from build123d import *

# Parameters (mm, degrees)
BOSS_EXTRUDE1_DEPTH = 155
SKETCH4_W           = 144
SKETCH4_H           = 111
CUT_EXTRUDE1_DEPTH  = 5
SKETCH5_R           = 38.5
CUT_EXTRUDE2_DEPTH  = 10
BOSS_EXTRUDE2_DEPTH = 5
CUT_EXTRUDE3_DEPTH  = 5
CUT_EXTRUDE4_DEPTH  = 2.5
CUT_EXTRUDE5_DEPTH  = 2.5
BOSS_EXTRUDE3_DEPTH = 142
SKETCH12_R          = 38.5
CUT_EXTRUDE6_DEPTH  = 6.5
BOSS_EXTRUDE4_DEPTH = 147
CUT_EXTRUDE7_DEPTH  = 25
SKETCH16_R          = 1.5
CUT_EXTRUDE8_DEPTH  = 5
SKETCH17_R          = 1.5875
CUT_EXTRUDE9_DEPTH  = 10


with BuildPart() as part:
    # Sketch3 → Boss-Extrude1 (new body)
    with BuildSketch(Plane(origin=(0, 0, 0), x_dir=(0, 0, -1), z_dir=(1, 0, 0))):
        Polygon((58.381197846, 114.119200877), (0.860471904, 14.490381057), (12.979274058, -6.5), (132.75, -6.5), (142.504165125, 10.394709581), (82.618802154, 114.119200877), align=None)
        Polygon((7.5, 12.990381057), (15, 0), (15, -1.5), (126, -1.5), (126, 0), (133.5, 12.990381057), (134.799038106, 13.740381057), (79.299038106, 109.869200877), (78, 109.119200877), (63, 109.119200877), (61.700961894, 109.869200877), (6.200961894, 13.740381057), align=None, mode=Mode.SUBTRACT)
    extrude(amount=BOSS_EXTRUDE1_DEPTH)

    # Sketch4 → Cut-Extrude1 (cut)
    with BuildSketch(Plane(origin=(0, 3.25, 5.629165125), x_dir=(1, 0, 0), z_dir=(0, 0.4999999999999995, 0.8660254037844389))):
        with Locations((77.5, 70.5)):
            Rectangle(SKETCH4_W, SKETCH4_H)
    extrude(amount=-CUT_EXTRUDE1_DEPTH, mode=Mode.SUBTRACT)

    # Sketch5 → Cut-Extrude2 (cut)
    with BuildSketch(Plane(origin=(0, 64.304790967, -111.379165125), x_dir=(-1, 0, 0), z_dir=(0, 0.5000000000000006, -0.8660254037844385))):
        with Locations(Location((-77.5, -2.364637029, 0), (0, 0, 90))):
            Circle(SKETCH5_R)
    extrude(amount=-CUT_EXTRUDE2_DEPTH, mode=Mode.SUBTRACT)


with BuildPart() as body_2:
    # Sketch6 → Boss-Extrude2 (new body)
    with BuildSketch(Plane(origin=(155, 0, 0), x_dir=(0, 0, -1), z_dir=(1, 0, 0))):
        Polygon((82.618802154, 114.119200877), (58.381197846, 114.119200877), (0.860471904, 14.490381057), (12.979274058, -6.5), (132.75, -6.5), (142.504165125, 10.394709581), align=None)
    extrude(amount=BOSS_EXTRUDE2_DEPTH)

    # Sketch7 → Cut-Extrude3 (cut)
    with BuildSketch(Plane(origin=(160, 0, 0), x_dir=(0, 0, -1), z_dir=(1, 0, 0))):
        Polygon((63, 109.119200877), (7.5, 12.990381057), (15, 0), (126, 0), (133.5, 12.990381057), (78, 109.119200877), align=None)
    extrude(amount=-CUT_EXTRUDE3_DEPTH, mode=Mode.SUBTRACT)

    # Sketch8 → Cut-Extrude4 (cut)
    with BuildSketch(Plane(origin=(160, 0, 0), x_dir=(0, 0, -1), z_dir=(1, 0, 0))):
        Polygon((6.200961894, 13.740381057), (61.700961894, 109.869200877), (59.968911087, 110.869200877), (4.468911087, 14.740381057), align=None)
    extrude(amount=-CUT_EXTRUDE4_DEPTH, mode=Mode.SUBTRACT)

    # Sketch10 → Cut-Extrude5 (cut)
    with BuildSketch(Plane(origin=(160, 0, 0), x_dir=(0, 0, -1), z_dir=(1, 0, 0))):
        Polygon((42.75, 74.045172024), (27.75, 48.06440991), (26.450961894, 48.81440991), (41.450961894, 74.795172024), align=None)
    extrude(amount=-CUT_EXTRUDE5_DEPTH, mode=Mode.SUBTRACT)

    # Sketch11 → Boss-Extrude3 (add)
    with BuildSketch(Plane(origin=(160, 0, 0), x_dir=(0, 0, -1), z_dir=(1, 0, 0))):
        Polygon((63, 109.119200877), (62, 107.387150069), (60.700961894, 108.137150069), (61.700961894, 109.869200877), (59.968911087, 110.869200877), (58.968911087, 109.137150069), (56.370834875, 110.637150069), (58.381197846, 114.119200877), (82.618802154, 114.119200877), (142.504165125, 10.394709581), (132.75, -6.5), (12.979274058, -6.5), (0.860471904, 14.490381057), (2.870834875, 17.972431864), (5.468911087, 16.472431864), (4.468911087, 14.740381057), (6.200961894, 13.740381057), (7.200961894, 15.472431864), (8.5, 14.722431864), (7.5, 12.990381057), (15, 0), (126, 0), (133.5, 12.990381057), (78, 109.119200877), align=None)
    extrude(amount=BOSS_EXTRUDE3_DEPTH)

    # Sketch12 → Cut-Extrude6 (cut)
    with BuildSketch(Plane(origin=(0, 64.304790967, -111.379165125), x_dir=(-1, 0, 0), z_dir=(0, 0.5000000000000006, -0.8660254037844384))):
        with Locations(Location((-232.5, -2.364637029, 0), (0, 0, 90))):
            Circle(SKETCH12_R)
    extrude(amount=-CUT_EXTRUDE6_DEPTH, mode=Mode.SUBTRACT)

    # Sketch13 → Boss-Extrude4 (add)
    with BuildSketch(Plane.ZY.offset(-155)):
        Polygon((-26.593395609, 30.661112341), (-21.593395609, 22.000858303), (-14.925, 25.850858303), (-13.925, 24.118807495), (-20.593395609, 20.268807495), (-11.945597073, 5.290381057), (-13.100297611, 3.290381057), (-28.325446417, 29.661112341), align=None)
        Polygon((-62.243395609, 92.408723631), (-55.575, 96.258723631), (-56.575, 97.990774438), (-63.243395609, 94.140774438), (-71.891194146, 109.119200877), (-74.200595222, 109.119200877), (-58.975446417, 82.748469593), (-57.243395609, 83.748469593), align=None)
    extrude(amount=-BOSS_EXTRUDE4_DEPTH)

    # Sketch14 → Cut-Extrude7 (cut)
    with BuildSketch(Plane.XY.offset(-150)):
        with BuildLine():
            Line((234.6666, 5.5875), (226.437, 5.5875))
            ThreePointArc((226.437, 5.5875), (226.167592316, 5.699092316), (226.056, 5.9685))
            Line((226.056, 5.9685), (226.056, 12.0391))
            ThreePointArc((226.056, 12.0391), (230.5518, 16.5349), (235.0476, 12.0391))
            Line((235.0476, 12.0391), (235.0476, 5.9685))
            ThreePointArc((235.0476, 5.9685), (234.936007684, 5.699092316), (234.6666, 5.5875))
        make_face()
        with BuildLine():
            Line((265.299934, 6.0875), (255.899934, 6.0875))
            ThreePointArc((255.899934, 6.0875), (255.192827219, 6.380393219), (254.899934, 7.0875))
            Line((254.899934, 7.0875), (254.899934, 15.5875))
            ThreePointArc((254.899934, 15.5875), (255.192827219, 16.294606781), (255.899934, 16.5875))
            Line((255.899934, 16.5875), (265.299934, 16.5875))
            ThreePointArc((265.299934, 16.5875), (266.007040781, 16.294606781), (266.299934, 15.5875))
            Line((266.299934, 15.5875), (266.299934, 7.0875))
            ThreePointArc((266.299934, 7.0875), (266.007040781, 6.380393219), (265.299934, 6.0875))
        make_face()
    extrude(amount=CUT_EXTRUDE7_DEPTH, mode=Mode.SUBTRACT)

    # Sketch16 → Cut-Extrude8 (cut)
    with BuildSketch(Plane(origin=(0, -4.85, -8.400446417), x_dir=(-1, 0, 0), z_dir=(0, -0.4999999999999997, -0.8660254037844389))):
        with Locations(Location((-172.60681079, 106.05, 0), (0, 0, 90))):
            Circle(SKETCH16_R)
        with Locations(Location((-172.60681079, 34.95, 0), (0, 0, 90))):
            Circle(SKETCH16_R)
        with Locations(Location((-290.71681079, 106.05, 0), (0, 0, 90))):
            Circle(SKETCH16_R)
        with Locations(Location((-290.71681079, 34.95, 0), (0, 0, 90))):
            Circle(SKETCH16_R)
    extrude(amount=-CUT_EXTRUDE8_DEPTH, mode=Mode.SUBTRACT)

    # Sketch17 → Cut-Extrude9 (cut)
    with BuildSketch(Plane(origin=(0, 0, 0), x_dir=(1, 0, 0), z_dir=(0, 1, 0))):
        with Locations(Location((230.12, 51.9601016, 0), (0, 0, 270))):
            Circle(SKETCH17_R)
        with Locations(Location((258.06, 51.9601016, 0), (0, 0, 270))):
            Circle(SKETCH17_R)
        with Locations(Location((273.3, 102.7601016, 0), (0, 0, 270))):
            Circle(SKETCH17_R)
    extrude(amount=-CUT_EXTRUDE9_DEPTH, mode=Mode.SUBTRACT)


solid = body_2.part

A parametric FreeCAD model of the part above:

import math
import FreeCAD as App
import Part
import Sketcher
from FreeCAD import Vector
Q = App.Units.Quantity


def add_polygon(sketch, points):
    """Adds a closed chain of lines whose ends are joined by coincident constraints."""
    first, n = sketch.GeometryCount, len(points)
    for a, b in zip(points, points[1:] + points[:1]):
        sketch.addGeometry(Part.LineSegment(App.Vector(*a, 0), App.Vector(*b, 0)), False)
    for i in range(n):
        sketch.addConstraint(Sketcher.Constraint("Coincident", first + i, 2, first + (i + 1) % n, 1))

doc = App.newDocument("Part")
body = doc.addObject("PartDesign::Body", "Body")

sketch1 = body.newObject("Sketcher::SketchObject", "Sketch")
sketch1.AttachmentSupport = (doc.getObject("YZ_Plane"), [""])
sketch1.MapMode = "FlatFace"
add_polygon(sketch1, [(114.1, -58.4), (14.5, -0.9), (-6.5, -13), (-6.5, -132.8), (10.4, -142.5), (114.1, -82.6)])
add_polygon(sketch1, [(0, -15), (13, -7.5), (13.7, -6.2), (109.9, -61.7), (109.1, -63), (109.1, -78), (109.9, -79.3), (13.7, -134.8), (13, -133.5), (0, -126), (-1.5, -126), (-1.5, -15)])
sketch1.addConstraint(Sketcher.Constraint("Vertical", 2))
sketch1.addConstraint(Sketcher.Constraint("Vertical", 5))
sketch1.addConstraint(Sketcher.Constraint("Vertical", 10))
sketch1.addConstraint(Sketcher.Constraint("Horizontal", 15))
sketch1.addConstraint(Sketcher.Constraint("Vertical", 16))
sketch1.addConstraint(Sketcher.Constraint("Horizontal", 17))
sketch1.addConstraint(Sketcher.Constraint("PointOnObject", 14, 2, -2))
sketch1.addConstraint(Sketcher.Constraint("PointOnObject", 17, 2, -2))
sketch1.addConstraint(Sketcher.Constraint("Parallel", 0, 3))
sketch1.addConstraint(Sketcher.Constraint("Parallel", 1, 4))
sketch1.addConstraint(Sketcher.Constraint("Parallel", 4, 6))
sketch1.addConstraint(Sketcher.Constraint("Perpendicular", 3, 7))
sketch1.addConstraint(Sketcher.Constraint("Perpendicular", 7, 8))
sketch1.addConstraint(Sketcher.Constraint("Perpendicular", 8, 9))
sketch1.addConstraint(Sketcher.Constraint("Perpendicular", 6, 11))
sketch1.addConstraint(Sketcher.Constraint("Perpendicular", 11, 12))
sketch1.addConstraint(Sketcher.Constraint("Perpendicular", 12, 13))
sketch1.addConstraint(Sketcher.Constraint("Perpendicular", 9, 14))
sketch1.addConstraint(Sketcher.Constraint("Vertical", 8, 2, 11, 2))
sketch1.addConstraint(Sketcher.Constraint("Vertical", 7, 2, 12, 2))
sketch1.addConstraint(Sketcher.Constraint("Vertical", 6, 2, 13, 2))
sketch1.addConstraint(Sketcher.Constraint("Equal", 7, 9))
sketch1.addConstraint(Sketcher.Constraint("Equal", 9, 11))
sketch1.addConstraint(Sketcher.Constraint("DistanceY", 10, 2, 10, 1, 15.0))
sketch1.addConstraint(Sketcher.Constraint("DistanceY", 16, 1, 16, 2, 111.0))
sketch1.addConstraint(Sketcher.Constraint("Angle", 0, Q("150 deg")))
sketch1.addConstraint(Sketcher.Constraint("Distance", 6, 15.0))
sketch1.addConstraint(Sketcher.Constraint("DistanceX", 15, 2, 15, 1, 1.5))
sketch1.addConstraint(Sketcher.Constraint("DistanceY", 9, 2, -1, 1, 63.0))
sketch1.addConstraint(Sketcher.Constraint("DistanceX", 9, 2, 5, 2, 5.0))
sketch1.addConstraint(Sketcher.Constraint("DistanceX", 2, 2, 15, 2, 5.0))
sketch1.addConstraint(Sketcher.Constraint("Distance", 7, 1.5))
sketch1.addConstraint(Sketcher.Constraint("DistanceX", 6, 2, 0, 2, 1.5))
sketch1.addConstraint(Sketcher.Constraint("DistanceY", 2, 2, -1, 1, 132.75))
sketch1.addConstraint(Sketcher.Constraint("Distance", 3, 19.50833))
sketch1.addConstraint(Sketcher.Constraint("DistanceY", 2, 2, 2, 1, 119.770726))
pad1 = body.newObject("PartDesign::Pad", "Pad")
pad1.Profile = sketch1
pad1.Length = 155

sketch2 = body.newObject("Sketcher::SketchObject", "Sketch001")
sketch2.Placement = App.Placement(Vector(0, 3.25, 5.629165), App.Rotation(Vector(1, 0, 0), Vector(0, 0.866025404, -0.5), Vector(0, 0.5, 0.866025404), "ZXY"))
add_polygon(sketch2, [(6, 126), (6, 15), (150, 15), (150, 126)])
sketch2.addConstraint(Sketcher.Constraint("Vertical", 0))
sketch2.addConstraint(Sketcher.Constraint("Horizontal", 1))
sketch2.addConstraint(Sketcher.Constraint("Vertical", 2))
sketch2.addConstraint(Sketcher.Constraint("Horizontal", 3))
sketch2.addConstraint(Sketcher.Constraint("DistanceX", 1, 1, 1, 2, 144.0))
sketch2.addConstraint(Sketcher.Constraint("DistanceY", 0, 2, 0, 1, 111.0))
sketch2.addConstraint(Sketcher.Constraint("DistanceY", -1, 1, 0, 2, 15.0))
sketch2.addConstraint(Sketcher.Constraint("DistanceX", -1, 1, 0, 2, 5.5))
pocket1 = body.newObject("PartDesign::Pocket", "Pocket")
pocket1.Profile = sketch2
pocket1.Length = 5

sketch3 = body.newObject("Sketcher::SketchObject", "Sketch002")
sketch3.Placement = App.Placement(Vector(0, 64.304791, -111.379165), App.Rotation(Vector(-1, 0, 0), Vector(0, 0.866025404, 0.5), Vector(0, 0.5, -0.866025404), "ZXY"))
sketch3.addGeometry(Part.Circle(Vector(-78, -2, 0), Vector(0, 0, 1), 38), False)
sketch3.addConstraint(Sketcher.Constraint("Diameter", 0, 77.0))
sketch3.addConstraint(Sketcher.Constraint("DistanceX", 0, 3, -1, 1, 77.5))
sketch3.addConstraint(Sketcher.Constraint("DistanceY", 0, 3, -1, 1, 2.364637))
pocket2 = body.newObject("PartDesign::Pocket", "Pocket001")
pocket2.Profile = sketch3
pocket2.Length = 10
body2 = doc.addObject("PartDesign::Body", "Body001")

sketch4 = body2.newObject("Sketcher::SketchObject", "Sketch003")
sketch4.AttachmentSupport = (doc.getObject("YZ_Plane001"), [""])
sketch4.MapMode = "FlatFace"
sketch4.AttachmentOffset = App.Placement(Vector(0, 0, 155), App.Rotation())
add_polygon(sketch4, [(114, -83), (114, -58), (14, -1), (-6, -13), (-6, -133), (10, -143)])
sketch4.addConstraint(Sketcher.Constraint("Vertical", 0))
sketch4.addConstraint(Sketcher.Constraint("Vertical", 3))
sketch4.addConstraint(Sketcher.Constraint("Parallel", 1, 4))
sketch4.addConstraint(Sketcher.Constraint("Parallel", 2, 5))
sketch4.addConstraint(Sketcher.Constraint("Angle", 1, Q("150 deg")))
sketch4.addConstraint(Sketcher.Constraint("Angle", 2, Q("-150 deg")))
sketch4.addConstraint(Sketcher.Constraint("DistanceX", 2, 2, -1, 1, 6.5))
sketch4.addConstraint(Sketcher.Constraint("DistanceY", 3, 2, -1, 1, 132.75))
sketch4.addConstraint(Sketcher.Constraint("DistanceX", -1, 1, 0, 2, 114.119201))
sketch4.addConstraint(Sketcher.Constraint("Distance", 1, 115.041452))
sketch4.addConstraint(Sketcher.Constraint("Distance", 4, 19.50833))
sketch4.addConstraint(Sketcher.Constraint("DistanceY", 0, 1, 0, 2, 24.237604))
pad2 = body2.newObject("PartDesign::Pad", "Pad001")
pad2.Profile = sketch4
pad2.Length = 5

sketch5 = body2.newObject("Sketcher::SketchObject", "Sketch004")
sketch5.AttachmentSupport = (doc.getObject("YZ_Plane001"), [""])
sketch5.MapMode = "FlatFace"
sketch5.AttachmentOffset = App.Placement(Vector(0, 0, 160), App.Rotation())
add_polygon(sketch5, [(109, -63), (13, -8), (0, -15), (0, -126), (13, -134), (109, -78)])
sketch5.addConstraint(Sketcher.Constraint("Vertical", 2))
sketch5.addConstraint(Sketcher.Constraint("Vertical", 5))
sketch5.addConstraint(Sketcher.Constraint("PointOnObject", 1, 2, -2))
sketch5.addConstraint(Sketcher.Constraint("Parallel", 0, 3))
sketch5.addConstraint(Sketcher.Constraint("Parallel", 1, 4))
sketch5.addConstraint(Sketcher.Constraint("Vertical", 0, 2, 3, 2))
sketch5.addConstraint(Sketcher.Constraint("Equal", 1, 3))
sketch5.addConstraint(Sketcher.Constraint("DistanceY", 2, 2, 2, 1, 111.0))
sketch5.addConstraint(Sketcher.Constraint("DistanceY", 5, 1, 5, 2, 15.0))
sketch5.addConstraint(Sketcher.Constraint("Angle", 0, Q("150 deg")))
sketch5.addConstraint(Sketcher.Constraint("Distance", 0, 111.0))
sketch5.addConstraint(Sketcher.Constraint("DistanceY", 1, 2, -1, 1, 15.0))
pocket3 = body2.newObject("PartDesign::Pocket", "Pocket002")
pocket3.Profile = sketch5
pocket3.Length = 5

sketch6 = body2.newObject("Sketcher::SketchObject", "Sketch005")
sketch6.AttachmentSupport = (doc.getObject("YZ_Plane001"), [""])
sketch6.MapMode = "FlatFace"
sketch6.AttachmentOffset = App.Placement(Vector(0, 0, 160), App.Rotation())
add_polygon(sketch6, [(13.7, -6.2), (109.9, -61.7), (110.9, -60), (14.7, -4.5)])
sketch6.addConstraint(Sketcher.Constraint("Perpendicular", 0, 1))
sketch6.addConstraint(Sketcher.Constraint("Perpendicular", 1, 2))
sketch6.addConstraint(Sketcher.Constraint("Perpendicular", 2, 3))
sketch6.addConstraint(Sketcher.Constraint("Angle", 0, Q("-30 deg")))
sketch6.addConstraint(Sketcher.Constraint("Distance", 0, 111.0))
sketch6.addConstraint(Sketcher.Constraint("Distance", 1, 2.0))
sketch6.addConstraint(Sketcher.Constraint("DistanceX", -1, 1, 0, 2, 109.869201))
sketch6.addConstraint(Sketcher.Constraint("DistanceY", 0, 2, -1, 1, 61.700962))
pocket4 = body2.newObject("PartDesign::Pocket", "Pocket003")
pocket4.Profile = sketch6
pocket4.Length = 2.5

sketch7 = body2.newObject("Sketcher::SketchObject", "Sketch006")
sketch7.AttachmentSupport = (doc.getObject("YZ_Plane001"), [""])
sketch7.MapMode = "FlatFace"
sketch7.AttachmentOffset = App.Placement(Vector(0, 0, 160), App.Rotation())
add_polygon(sketch7, [(48.1, -27.8), (74, -42.8), (74.8, -41.5), (48.8, -26.5)])
sketch7.addConstraint(Sketcher.Constraint("Perpendicular", 0, 1))
sketch7.addConstraint(Sketcher.Constraint("Perpendicular", 1, 2))
sketch7.addConstraint(Sketcher.Constraint("Perpendicular", 2, 3))
sketch7.addConstraint(Sketcher.Constraint("Angle", 0, Q("-30 deg")))
sketch7.addConstraint(Sketcher.Constraint("Distance", 0, 30.0))
sketch7.addConstraint(Sketcher.Constraint("Distance", 1, 1.5))
sketch7.addConstraint(Sketcher.Constraint("DistanceY", 0, 2, -1, 1, 42.75))
sketch7.addConstraint(Sketcher.Constraint("DistanceX", -1, 1, 2, 2, 48.81441))
pocket5 = body2.newObject("PartDesign::Pocket", "Pocket004")
pocket5.Profile = sketch7
pocket5.Length = 2.5

sketch8 = body2.newObject("Sketcher::SketchObject", "Sketch007")
sketch8.AttachmentSupport = (doc.getObject("YZ_Plane001"), [""])
sketch8.MapMode = "FlatFace"
sketch8.AttachmentOffset = App.Placement(Vector(0, 0, 160), App.Rotation())
add_polygon(sketch8, [(107.4, -62), (109.1, -63), (109.1, -78), (13, -133.5), (0, -126), (0, -15), (13, -7.5), (14.7, -8.5), (15.5, -7.2), (13.7, -6.2), (14.7, -4.5), (16.5, -5.5), (18, -2.9), (14.5, -0.9), (-6.5, -13), (-6.5, -132.8), (10.4, -142.5), (114.1, -82.6), (114.1, -58.4), (110.6, -56.4), (109.1, -59), (110.9, -60), (109.9, -61.7), (108.1, -60.7)])
sketch8.addConstraint(Sketcher.Constraint("Vertical", 1))
sketch8.addConstraint(Sketcher.Constraint("Vertical", 4))
sketch8.addConstraint(Sketcher.Constraint("Vertical", 14))
sketch8.addConstraint(Sketcher.Constraint("Vertical", 17))
sketch8.addConstraint(Sketcher.Constraint("PointOnObject", 3, 2, -2))
sketch8.addConstraint(Sketcher.Constraint("Parallel", 0, 3))
sketch8.addConstraint(Sketcher.Constraint("Parallel", 2, 5))
sketch8.addConstraint(Sketcher.Constraint("Parallel", 3, 6))
sketch8.addConstraint(Sketcher.Constraint("Perpendicular", 6, 7))
sketch8.addConstraint(Sketcher.Constraint("Perpendicular", 7, 8))
sketch8.addConstraint(Sketcher.Constraint("Perpendicular", 8, 9))
sketch8.addConstraint(Sketcher.Constraint("Perpendicular", 9, 10))
sketch8.addConstraint(Sketcher.Constraint("Perpendicular", 10, 11))
sketch8.addConstraint(Sketcher.Constraint("Perpendicular", 11, 12))
sketch8.addConstraint(Sketcher.Constraint("Parallel", 5, 13))
sketch8.addConstraint(Sketcher.Constraint("Parallel", 12, 15))
sketch8.addConstraint(Sketcher.Constraint("Parallel", 13, 16))
sketch8.addConstraint(Sketcher.Constraint("Parallel", 15, 18))
sketch8.addConstraint(Sketcher.Constraint("Perpendicular", 18, 19))
sketch8.addConstraint(Sketcher.Constraint("Perpendicular", 19, 20))
sketch8.addConstraint(Sketcher.Constraint("Perpendicular", 20, 21))
sketch8.addConstraint(Sketcher.Constraint("Perpendicular", 21, 22))
sketch8.addConstraint(Sketcher.Constraint("Perpendicular", 22, 23))
sketch8.addConstraint(Sketcher.Constraint("Vertical", 2, 2, 5, 2))
sketch8.addConstraint(Sketcher.Constraint("Equal", 3, 5))
sketch8.addConstraint(Sketcher.Constraint("Equal", 0, 6))
sketch8.addConstraint(Sketcher.Constraint("Equal", 6, 8))
sketch8.addConstraint(Sketcher.Constraint("Equal", 8, 9))
sketch8.addConstraint(Sketcher.Constraint("Equal", 9, 10))
sketch8.addConstraint(Sketcher.Constraint("Equal", 12, 18))
sketch8.addConstraint(Sketcher.Constraint("Equal", 11, 19))
sketch8.addConstraint(Sketcher.Constraint("Equal", 10, 20))
sketch8.addConstraint(Sketcher.Constraint("Equal", 20, 21))
sketch8.addConstraint(Sketcher.Constraint("Equal", 21, 22))
sketch8.addConstraint(Sketcher.Constraint("Equal", 7, 23))
sketch8.addConstraint(Sketcher.Constraint("DistanceY", 1, 2, 1, 1, 15.0))
sketch8.addConstraint(Sketcher.Constraint("DistanceY", 4, 1, 4, 2, 111.0))
sketch8.addConstraint(Sketcher.Constraint("Angle", 0, Q("-30 deg")))
sketch8.addConstraint(Sketcher.Constraint("Distance", 0, 2.0))
sketch8.addConstraint(Sketcher.Constraint("Distance", 2, 111.0))
sketch8.addConstraint(Sketcher.Constraint("Distance", 3, 15.0))
sketch8.addConstraint(Sketcher.Constraint("Distance", 11, 3.0))
sketch8.addConstraint(Sketcher.Constraint("DistanceY", 0, 2, -1, 1, 63.0))
sketch8.addConstraint(Sketcher.Constraint("DistanceX", 1, 2, 16, 2, 5.0))
sketch8.addConstraint(Sketcher.Constraint("Distance", 7, 1.5))
sketch8.addConstraint(Sketcher.Constraint("DistanceX", 13, 2, -1, 1, 6.5))
sketch8.addConstraint(Sketcher.Constraint("DistanceY", 14, 2, -1, 1, 132.75))
sketch8.addConstraint(Sketcher.Constraint("Distance", 15, 19.50833))
pad3 = body2.newObject("PartDesign::Pad", "Pad002")
pad3.Profile = sketch8
pad3.Length = 142

sketch9 = body2.newObject("Sketcher::SketchObject", "Sketch008")
sketch9.Placement = App.Placement(Vector(0, 64.304791, -111.379165), App.Rotation(Vector(-1, 0, 0), Vector(0, 0.866025404, 0.5), Vector(0, 0.5, -0.866025404), "ZXY"))
sketch9.addGeometry(Part.Circle(Vector(-232, -2, 0), Vector(0, 0, 1), 38), False)
sketch9.addConstraint(Sketcher.Constraint("Diameter", 0, 77.0))
sketch9.addConstraint(Sketcher.Constraint("DistanceX", 0, 3, -1, 1, 232.5))
sketch9.addConstraint(Sketcher.Constraint("DistanceY", 0, 3, -1, 1, 2.364637))
pocket6 = body2.newObject("PartDesign::Pocket", "Pocket005")
pocket6.Profile = sketch9
pocket6.Length = 6.5

sketch10 = body2.newObject("Sketcher::SketchObject", "Sketch009")
sketch10.AttachmentSupport = (doc.getObject("YZ_Plane001"), [""])
sketch10.MapMode = "FlatFace"
sketch10.AttachmentOffset = App.Placement(Vector(0, 0, 155), App.Rotation())
add_polygon(sketch10, [(22, -21.6), (30.7, -26.6), (29.7, -28.3), (3.3, -13.1), (5.3, -11.9), (20.3, -20.6), (24.1, -13.9), (25.9, -14.9)])
add_polygon(sketch10, [(92.4, -62.2), (96.3, -55.6), (98, -56.6), (94.1, -63.2), (109.1, -71.9), (109.1, -74.2), (82.7, -59), (83.7, -57.2)])
sketch10.addConstraint(Sketcher.Constraint("Vertical", 12))
sketch10.addConstraint(Sketcher.Constraint("Perpendicular", 0, 1))
sketch10.addConstraint(Sketcher.Constraint("Perpendicular", 1, 2))
sketch10.addConstraint(Sketcher.Constraint("Parallel", 2, 4))
sketch10.addConstraint(Sketcher.Constraint("Perpendicular", 4, 5))
sketch10.addConstraint(Sketcher.Constraint("Perpendicular", 5, 6))
sketch10.addConstraint(Sketcher.Constraint("Perpendicular", 6, 7))
sketch10.addConstraint(Sketcher.Constraint("Parallel", 7, 8))
sketch10.addConstraint(Sketcher.Constraint("Perpendicular", 8, 9))
sketch10.addConstraint(Sketcher.Constraint("Perpendicular", 9, 10))
sketch10.addConstraint(Sketcher.Constraint("Perpendicular", 10, 11))
sketch10.addConstraint(Sketcher.Constraint("Parallel", 11, 13))
sketch10.addConstraint(Sketcher.Constraint("Perpendicular", 13, 14))
sketch10.addConstraint(Sketcher.Constraint("Perpendicular", 14, 15))
sketch10.addConstraint(Sketcher.Constraint("Equal", 1, 6))
sketch10.addConstraint(Sketcher.Constraint("Equal", 5, 7))
sketch10.addConstraint(Sketcher.Constraint("Equal", 7, 8))
sketch10.addConstraint(Sketcher.Constraint("Equal", 6, 9))
sketch10.addConstraint(Sketcher.Constraint("Equal", 8, 10))
sketch10.addConstraint(Sketcher.Constraint("Equal", 4, 11))
sketch10.addConstraint(Sketcher.Constraint("Equal", 2, 13))
sketch10.addConstraint(Sketcher.Constraint("Equal", 9, 14))
sketch10.addConstraint(Sketcher.Constraint("Equal", 0, 15))
sketch10.addConstraint(Sketcher.Constraint("Angle", 0, Q("-30 deg")))
sketch10.addConstraint(Sketcher.Constraint("Distance", 0, 10.0))
sketch10.addConstraint(Sketcher.Constraint("Distance", 1, 2.0))
sketch10.addConstraint(Sketcher.Constraint("Distance", 5, 7.7))
sketch10.addConstraint(Sketcher.Constraint("DistanceY", 8, 2, 6, 2, 40.65))
sketch10.addConstraint(Sketcher.Constraint("DistanceY", 5, 2, -1, 1, 13.925))
sketch10.addConstraint(Sketcher.Constraint("DistanceX", -1, 1, 11, 2, 109.119201))
sketch10.addConstraint(Sketcher.Constraint("DistanceY", 0, 2, 3, 2, 14.647799))
sketch10.addConstraint(Sketcher.Constraint("DistanceX", -1, 1, 2, 2, 3.290381))
pad4 = body2.newObject("PartDesign::Pad", "Pad003")
pad4.Profile = sketch10
pad4.Length = 147

sketch11 = body2.newObject("Sketcher::SketchObject", "Sketch010")
sketch11.AttachmentSupport = (doc.getObject("XY_Plane001"), [""])
sketch11.MapMode = "FlatFace"
sketch11.AttachmentOffset = App.Placement(Vector(0, 0, -150), App.Rotation())
sketch11.addGeometry(Part.LineSegment(Vector(226.44, 5.59, 0), Vector(234.67, 5.59, 0)), False)
sketch11.addGeometry(Part.ArcOfCircle(Part.Circle(Vector(234.67, 5.97, 0), Vector(0, 0, 1), 0.38), math.radians(-90), math.radians(0)), False)
sketch11.addGeometry(Part.LineSegment(Vector(235.05, 5.97, 0), Vector(235.05, 12.04, 0)), False)
sketch11.addGeometry(Part.ArcOfCircle(Part.Circle(Vector(230.55, 12.04, 0), Vector(0, 0, 1), 4.5), math.radians(0), math.radians(180)), False)
sketch11.addGeometry(Part.LineSegment(Vector(226.06, 12.04, 0), Vector(226.06, 5.97, 0)), False)
sketch11.addGeometry(Part.ArcOfCircle(Part.Circle(Vector(226.44, 5.97, 0), Vector(0, 0, 1), 0.38), math.radians(180), math.radians(270)), False)
sketch11.addGeometry(Part.LineSegment(Vector(255.9, 6.09, 0), Vector(265.3, 6.09, 0)), False)
sketch11.addGeometry(Part.ArcOfCircle(Part.Circle(Vector(265.3, 7.09, 0), Vector(0, 0, 1), 1), math.radians(-90), math.radians(0)), False)
sketch11.addGeometry(Part.LineSegment(Vector(266.3, 7.09, 0), Vector(266.3, 15.59, 0)), False)
sketch11.addGeometry(Part.ArcOfCircle(Part.Circle(Vector(265.3, 15.59, 0), Vector(0, 0, 1), 1), math.radians(0), math.radians(90)), False)
sketch11.addGeometry(Part.LineSegment(Vector(265.3, 16.59, 0), Vector(255.9, 16.59, 0)), False)
sketch11.addGeometry(Part.ArcOfCircle(Part.Circle(Vector(255.9, 15.59, 0), Vector(0, 0, 1), 1), math.radians(90), math.radians(180)), False)
sketch11.addGeometry(Part.LineSegment(Vector(254.9, 15.59, 0), Vector(254.9, 7.09, 0)), False)
sketch11.addGeometry(Part.ArcOfCircle(Part.Circle(Vector(255.9, 7.09, 0), Vector(0, 0, 1), 1), math.radians(-180), math.radians(-90)), False)
sketch11.addConstraint(Sketcher.Constraint("Tangent", 0, 2, 1, 1))
sketch11.addConstraint(Sketcher.Constraint("Tangent", 1, 2, 2, 1))
sketch11.addConstraint(Sketcher.Constraint("Tangent", 2, 2, 3, 1))
sketch11.addConstraint(Sketcher.Constraint("Tangent", 3, 2, 4, 1))
sketch11.addConstraint(Sketcher.Constraint("Tangent", 4, 2, 5, 1))
sketch11.addConstraint(Sketcher.Constraint("Tangent", 5, 2, 0, 1))
sketch11.addConstraint(Sketcher.Constraint("Tangent", 6, 2, 7, 1))
sketch11.addConstraint(Sketcher.Constraint("Tangent", 7, 2, 8, 1))
sketch11.addConstraint(Sketcher.Constraint("Tangent", 8, 2, 9, 1))
sketch11.addConstraint(Sketcher.Constraint("Tangent", 9, 2, 10, 1))
sketch11.addConstraint(Sketcher.Constraint("Tangent", 10, 2, 11, 1))
sketch11.addConstraint(Sketcher.Constraint("Tangent", 11, 2, 12, 1))
sketch11.addConstraint(Sketcher.Constraint("Tangent", 12, 2, 13, 1))
sketch11.addConstraint(Sketcher.Constraint("Tangent", 13, 2, 6, 1))
sketch11.addConstraint(Sketcher.Constraint("Horizontal", 0))
sketch11.addConstraint(Sketcher.Constraint("Vertical", 2))
sketch11.addConstraint(Sketcher.Constraint("Vertical", 4))
sketch11.addConstraint(Sketcher.Constraint("Horizontal", 6))
sketch11.addConstraint(Sketcher.Constraint("Vertical", 8))
sketch11.addConstraint(Sketcher.Constraint("Horizontal", 10))
sketch11.addConstraint(Sketcher.Constraint("Vertical", 12))
sketch11.addConstraint(Sketcher.Constraint("Equal", 1, 5))
sketch11.addConstraint(Sketcher.Constraint("Equal", 7, 9))
sketch11.addConstraint(Sketcher.Constraint("Equal", 9, 11))
sketch11.addConstraint(Sketcher.Constraint("Equal", 11, 13))
sketch11.addConstraint(Sketcher.Constraint("Radius", 7, 1.0))
sketch11.addConstraint(Sketcher.Constraint("DistanceX", 6, 1, 6, 2, 9.4))
sketch11.addConstraint(Sketcher.Constraint("DistanceY", 8, 1, 8, 2, 8.5))
sketch11.addConstraint(Sketcher.Constraint("Radius", 1, 0.381))
sketch11.addConstraint(Sketcher.Constraint("DistanceY", 0, 2, 11, 3, 10.0))
sketch11.addConstraint(Sketcher.Constraint("Radius", 3, 4.4958))
sketch11.addConstraint(Sketcher.Constraint("DistanceY", 2, 1, 2, 2, 6.0706))
sketch11.addConstraint(Sketcher.Constraint("DistanceX", -1, 1, 5, 3, 226.437))
sketch11.addConstraint(Sketcher.Constraint("DistanceY", -1, 1, 1, 3, 5.9685))
sketch11.addConstraint(Sketcher.Constraint("DistanceX", -1, 1, 7, 3, 265.299934))
pocket7 = body2.newObject("PartDesign::Pocket", "Pocket006")
pocket7.Profile = sketch11
pocket7.Length = 25
pocket7.Reversed = True

sketch12 = body2.newObject("Sketcher::SketchObject", "Sketch011")
sketch12.Placement = App.Placement(Vector(0, -4.85, -8.400446), App.Rotation(Vector(-1, 0, 0), Vector(0, 0.866025404, -0.5), Vector(0, -0.5, -0.866025404), "ZXY"))
sketch12.addGeometry(Part.Circle(Vector(-172.6, 106.1, 0), Vector(0, 0, 1), 1.5), False)
sketch12.addGeometry(Part.Circle(Vector(-172.6, 35, 0), Vector(0, 0, 1), 1.5), False)
sketch12.addGeometry(Part.Circle(Vector(-290.7, 106.1, 0), Vector(0, 0, 1), 1.5), False)
sketch12.addGeometry(Part.Circle(Vector(-290.7, 35, 0), Vector(0, 0, 1), 1.5), False)
sketch12.addConstraint(Sketcher.Constraint("Equal", 0, 1))
sketch12.addConstraint(Sketcher.Constraint("Equal", 1, 2))
sketch12.addConstraint(Sketcher.Constraint("Equal", 2, 3))
sketch12.addConstraint(Sketcher.Constraint("Horizontal", 0, 3, 2, 3))
sketch12.addConstraint(Sketcher.Constraint("Horizontal", 1, 3, 3, 3))
sketch12.addConstraint(Sketcher.Constraint("Vertical", 0, 3, 1, 3))
sketch12.addConstraint(Sketcher.Constraint("Vertical", 2, 3, 3, 3))
sketch12.addConstraint(Sketcher.Constraint("Diameter", 0, 3.0))
sketch12.addConstraint(Sketcher.Constraint("DistanceY", 1, 3, 0, 3, 71.1))
sketch12.addConstraint(Sketcher.Constraint("DistanceY", -1, 1, 0, 3, 106.05))
sketch12.addConstraint(Sketcher.Constraint("DistanceX", 2, 3, 0, 3, 118.11))
sketch12.addConstraint(Sketcher.Constraint("DistanceX", 0, 3, -1, 1, 172.606811))
pocket8 = body2.newObject("PartDesign::Pocket", "Pocket007")
pocket8.Profile = sketch12
pocket8.Length = 5

sketch13 = body2.newObject("Sketcher::SketchObject", "Sketch012")
sketch13.AttachmentSupport = (doc.getObject("XZ_Plane001"), [""])
sketch13.MapMode = "FlatFace"
sketch13.addGeometry(Part.Circle(Vector(230.1, -52, 0), Vector(0, 0, 1), 1.6), False)
sketch13.addGeometry(Part.Circle(Vector(258.1, -52, 0), Vector(0, 0, 1), 1.6), False)
sketch13.addGeometry(Part.Circle(Vector(273.3, -102.8, 0), Vector(0, 0, 1), 1.6), False)
sketch13.addConstraint(Sketcher.Constraint("Equal", 0, 1))
sketch13.addConstraint(Sketcher.Constraint("Equal", 1, 2))
sketch13.addConstraint(Sketcher.Constraint("Horizontal", 0, 3, 1, 3))
sketch13.addConstraint(Sketcher.Constraint("Diameter", 0, 3.175))
sketch13.addConstraint(Sketcher.Constraint("DistanceX", -1, 1, 2, 3, 273.3))
sketch13.addConstraint(Sketcher.Constraint("DistanceY", 2, 3, 1, 3, 50.8))
sketch13.addConstraint(Sketcher.Constraint("DistanceX", -1, 1, 0, 3, 230.12))
sketch13.addConstraint(Sketcher.Constraint("DistanceX", -1, 1, 1, 3, 258.06))
sketch13.addConstraint(Sketcher.Constraint("DistanceY", 0, 3, -1, 1, 51.960102))
pocket9 = body2.newObject("PartDesign::Pocket", "Pocket008")
pocket9.Profile = sketch13
pocket9.Length = 10
pocket9.Reversed = True
body.Visibility = False

doc.recompute()
